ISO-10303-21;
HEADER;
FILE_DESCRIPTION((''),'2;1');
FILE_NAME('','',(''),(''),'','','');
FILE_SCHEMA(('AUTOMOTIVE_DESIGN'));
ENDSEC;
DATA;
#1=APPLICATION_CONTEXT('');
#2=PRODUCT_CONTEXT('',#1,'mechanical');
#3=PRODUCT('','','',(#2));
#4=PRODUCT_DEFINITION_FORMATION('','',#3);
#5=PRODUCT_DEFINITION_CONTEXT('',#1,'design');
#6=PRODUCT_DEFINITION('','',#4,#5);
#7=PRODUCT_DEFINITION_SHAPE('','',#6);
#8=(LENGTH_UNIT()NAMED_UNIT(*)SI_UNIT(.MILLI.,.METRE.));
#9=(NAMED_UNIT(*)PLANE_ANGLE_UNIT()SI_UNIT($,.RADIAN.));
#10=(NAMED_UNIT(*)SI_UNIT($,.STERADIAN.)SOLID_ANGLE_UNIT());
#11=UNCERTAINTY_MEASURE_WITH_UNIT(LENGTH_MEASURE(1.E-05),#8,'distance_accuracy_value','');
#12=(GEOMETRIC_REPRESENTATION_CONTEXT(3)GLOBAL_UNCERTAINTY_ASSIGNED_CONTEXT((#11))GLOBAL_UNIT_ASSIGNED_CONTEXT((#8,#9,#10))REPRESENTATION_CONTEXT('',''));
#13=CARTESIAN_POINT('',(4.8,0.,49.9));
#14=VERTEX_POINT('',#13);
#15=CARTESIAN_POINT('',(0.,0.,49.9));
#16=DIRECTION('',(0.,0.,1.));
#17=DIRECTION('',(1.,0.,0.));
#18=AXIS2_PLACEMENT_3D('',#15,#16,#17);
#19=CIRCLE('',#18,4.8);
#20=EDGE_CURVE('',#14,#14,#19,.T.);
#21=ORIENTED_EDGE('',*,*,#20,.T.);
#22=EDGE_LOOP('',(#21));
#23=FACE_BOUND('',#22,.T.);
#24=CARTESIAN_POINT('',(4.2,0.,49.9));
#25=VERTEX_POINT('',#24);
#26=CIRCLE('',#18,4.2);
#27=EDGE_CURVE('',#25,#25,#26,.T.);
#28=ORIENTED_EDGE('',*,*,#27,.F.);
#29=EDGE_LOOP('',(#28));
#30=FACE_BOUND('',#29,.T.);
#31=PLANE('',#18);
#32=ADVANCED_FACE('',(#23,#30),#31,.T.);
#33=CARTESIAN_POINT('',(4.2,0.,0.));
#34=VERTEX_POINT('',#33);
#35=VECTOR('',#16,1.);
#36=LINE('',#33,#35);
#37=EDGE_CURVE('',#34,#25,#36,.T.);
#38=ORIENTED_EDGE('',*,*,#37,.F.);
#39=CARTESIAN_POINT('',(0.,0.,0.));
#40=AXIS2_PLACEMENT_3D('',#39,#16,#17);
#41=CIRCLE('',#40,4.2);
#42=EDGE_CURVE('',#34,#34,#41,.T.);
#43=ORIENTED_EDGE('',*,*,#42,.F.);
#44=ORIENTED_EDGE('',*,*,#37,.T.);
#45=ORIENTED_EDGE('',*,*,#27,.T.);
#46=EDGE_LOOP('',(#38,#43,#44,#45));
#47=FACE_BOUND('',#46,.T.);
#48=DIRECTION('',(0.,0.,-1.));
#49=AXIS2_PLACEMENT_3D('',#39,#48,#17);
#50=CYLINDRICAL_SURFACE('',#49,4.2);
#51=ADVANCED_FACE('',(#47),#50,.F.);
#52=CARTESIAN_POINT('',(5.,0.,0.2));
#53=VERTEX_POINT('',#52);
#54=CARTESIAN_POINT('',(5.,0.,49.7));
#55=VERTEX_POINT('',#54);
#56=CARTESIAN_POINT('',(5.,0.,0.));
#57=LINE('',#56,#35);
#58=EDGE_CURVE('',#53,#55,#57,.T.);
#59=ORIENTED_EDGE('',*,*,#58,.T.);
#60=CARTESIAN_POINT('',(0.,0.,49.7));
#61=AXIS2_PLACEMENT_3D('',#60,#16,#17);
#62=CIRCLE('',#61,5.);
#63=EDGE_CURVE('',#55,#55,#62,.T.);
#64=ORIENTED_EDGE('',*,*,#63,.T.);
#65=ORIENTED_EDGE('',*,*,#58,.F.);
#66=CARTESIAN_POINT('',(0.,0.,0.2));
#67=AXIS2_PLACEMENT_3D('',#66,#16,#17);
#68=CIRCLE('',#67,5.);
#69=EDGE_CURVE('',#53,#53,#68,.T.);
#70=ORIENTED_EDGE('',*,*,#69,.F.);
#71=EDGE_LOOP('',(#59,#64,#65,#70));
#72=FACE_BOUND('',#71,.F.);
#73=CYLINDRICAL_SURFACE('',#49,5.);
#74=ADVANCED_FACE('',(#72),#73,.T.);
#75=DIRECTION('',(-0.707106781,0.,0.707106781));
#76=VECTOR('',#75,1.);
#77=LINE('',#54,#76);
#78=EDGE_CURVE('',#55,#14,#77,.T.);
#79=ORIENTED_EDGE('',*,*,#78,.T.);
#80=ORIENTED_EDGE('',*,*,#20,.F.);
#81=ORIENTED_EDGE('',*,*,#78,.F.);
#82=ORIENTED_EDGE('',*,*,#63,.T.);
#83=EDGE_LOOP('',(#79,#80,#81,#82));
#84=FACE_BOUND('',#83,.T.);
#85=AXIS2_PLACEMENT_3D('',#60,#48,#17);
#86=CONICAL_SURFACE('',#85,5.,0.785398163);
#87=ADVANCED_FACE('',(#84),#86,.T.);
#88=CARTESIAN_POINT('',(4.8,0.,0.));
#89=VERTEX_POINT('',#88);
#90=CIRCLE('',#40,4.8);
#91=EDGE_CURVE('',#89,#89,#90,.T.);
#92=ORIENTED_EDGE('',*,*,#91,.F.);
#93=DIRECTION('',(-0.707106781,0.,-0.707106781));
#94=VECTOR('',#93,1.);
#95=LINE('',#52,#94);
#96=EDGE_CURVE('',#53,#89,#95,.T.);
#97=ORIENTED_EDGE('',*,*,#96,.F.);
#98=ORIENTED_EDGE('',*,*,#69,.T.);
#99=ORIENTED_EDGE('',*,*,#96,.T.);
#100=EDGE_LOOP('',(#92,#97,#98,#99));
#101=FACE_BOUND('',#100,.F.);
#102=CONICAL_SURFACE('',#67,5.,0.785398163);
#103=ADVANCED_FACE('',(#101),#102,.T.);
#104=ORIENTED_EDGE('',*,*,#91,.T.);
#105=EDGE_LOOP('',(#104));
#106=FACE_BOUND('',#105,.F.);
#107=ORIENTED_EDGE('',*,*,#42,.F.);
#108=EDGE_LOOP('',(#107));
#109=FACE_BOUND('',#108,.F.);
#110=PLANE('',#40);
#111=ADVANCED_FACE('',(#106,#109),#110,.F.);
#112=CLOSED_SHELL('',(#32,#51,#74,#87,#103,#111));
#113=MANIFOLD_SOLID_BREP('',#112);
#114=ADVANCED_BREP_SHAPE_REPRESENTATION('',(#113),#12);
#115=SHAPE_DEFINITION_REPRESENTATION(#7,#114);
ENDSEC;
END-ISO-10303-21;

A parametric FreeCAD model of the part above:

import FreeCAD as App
import Part
import Sketcher
from FreeCAD import Vector


def edges_at(feature, points):
    """Names of the edges that pass closest to the given points."""
    edges = feature.Shape.Edges
    near = lambda p: min(range(len(edges)), key=lambda i: edges[i].distToShape(Part.Vertex(*p))[0])
    return sorted({f"Edge{near(p) + 1}" for p in points})

doc = App.newDocument("Part")
body = doc.addObject("PartDesign::Body", "Body")

sketch1 = body.newObject("Sketcher::SketchObject", "Sketch")
sketch1.AttachmentSupport = (doc.getObject("XY_Plane"), [""])
sketch1.MapMode = "FlatFace"
sketch1.addGeometry(Part.Circle(Vector(0, 0, 0), Vector(0, 0, 1), 5), False)
sketch1.addGeometry(Part.Circle(Vector(0, 0, 0), Vector(0, 0, 1), 4.2), False)
sketch1.addConstraint(Sketcher.Constraint("Coincident", 0, 3, -1, 1))
sketch1.addConstraint(Sketcher.Constraint("Coincident", 1, 3, -1, 1))
sketch1.addConstraint(Sketcher.Constraint("Diameter", 0, 10.0))
sketch1.addConstraint(Sketcher.Constraint("Diameter", 1, 8.4))
pad1 = body.newObject("PartDesign::Pad", "Pad")
pad1.Profile = sketch1
pad1.Length = 49.9
doc.recompute()

chamfer = body.newObject("PartDesign::Chamfer", "Chamfer")
chamfer.Base = (pad1, edges_at(pad1, [(-4.662, -1.808, 49.9)]))
chamfer.Size = 0.2
doc.recompute()

chamfer2 = body.newObject("PartDesign::Chamfer", "Chamfer001")
chamfer2.Base = (chamfer, edges_at(chamfer, [(-4.662, -1.808, 0)]))
chamfer2.Size = 0.2

doc.recompute()
